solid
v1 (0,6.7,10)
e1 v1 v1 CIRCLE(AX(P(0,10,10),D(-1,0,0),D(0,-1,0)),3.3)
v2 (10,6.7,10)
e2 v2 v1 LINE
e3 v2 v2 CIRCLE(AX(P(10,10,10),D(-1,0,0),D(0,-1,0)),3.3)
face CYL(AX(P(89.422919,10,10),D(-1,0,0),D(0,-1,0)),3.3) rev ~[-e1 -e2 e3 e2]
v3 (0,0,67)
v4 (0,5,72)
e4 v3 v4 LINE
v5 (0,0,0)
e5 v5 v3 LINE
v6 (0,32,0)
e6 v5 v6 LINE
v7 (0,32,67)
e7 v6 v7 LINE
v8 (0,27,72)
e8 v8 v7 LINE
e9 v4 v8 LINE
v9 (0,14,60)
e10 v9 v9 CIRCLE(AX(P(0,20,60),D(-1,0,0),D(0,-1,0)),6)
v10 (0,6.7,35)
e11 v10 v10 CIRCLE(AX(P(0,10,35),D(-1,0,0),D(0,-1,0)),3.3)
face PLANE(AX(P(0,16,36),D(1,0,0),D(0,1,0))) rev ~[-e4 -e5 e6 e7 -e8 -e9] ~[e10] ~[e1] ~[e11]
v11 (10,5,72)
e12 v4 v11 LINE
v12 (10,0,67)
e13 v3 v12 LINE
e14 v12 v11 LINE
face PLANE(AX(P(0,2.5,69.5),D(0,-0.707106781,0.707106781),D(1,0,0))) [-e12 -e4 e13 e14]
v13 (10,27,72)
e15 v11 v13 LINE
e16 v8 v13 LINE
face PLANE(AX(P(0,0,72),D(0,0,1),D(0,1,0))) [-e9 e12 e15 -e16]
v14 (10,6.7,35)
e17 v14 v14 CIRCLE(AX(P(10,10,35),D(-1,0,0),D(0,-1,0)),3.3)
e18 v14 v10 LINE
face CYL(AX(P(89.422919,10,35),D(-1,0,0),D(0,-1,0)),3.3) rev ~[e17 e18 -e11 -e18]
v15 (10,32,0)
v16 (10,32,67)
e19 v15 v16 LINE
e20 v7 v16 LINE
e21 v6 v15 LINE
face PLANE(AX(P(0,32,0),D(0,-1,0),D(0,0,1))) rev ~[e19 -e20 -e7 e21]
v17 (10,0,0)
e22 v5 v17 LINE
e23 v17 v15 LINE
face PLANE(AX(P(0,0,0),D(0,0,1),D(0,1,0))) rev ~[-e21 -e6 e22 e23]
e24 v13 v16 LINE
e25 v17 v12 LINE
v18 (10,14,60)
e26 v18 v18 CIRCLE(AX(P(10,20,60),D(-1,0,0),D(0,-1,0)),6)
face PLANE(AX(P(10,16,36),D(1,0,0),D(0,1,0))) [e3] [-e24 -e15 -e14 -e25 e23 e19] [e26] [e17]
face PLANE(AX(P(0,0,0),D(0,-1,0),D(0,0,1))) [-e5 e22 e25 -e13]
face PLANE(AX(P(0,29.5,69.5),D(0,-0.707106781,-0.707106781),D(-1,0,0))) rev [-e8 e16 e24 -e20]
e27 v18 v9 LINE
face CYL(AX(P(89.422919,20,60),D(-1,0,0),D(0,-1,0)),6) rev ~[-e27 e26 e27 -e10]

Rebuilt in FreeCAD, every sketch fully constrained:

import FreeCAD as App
import Part
import Sketcher

V = App.Vector


def edges_at(feature, points):
    """Names of the edges that pass closest to the given points."""
    edges = feature.Shape.Edges
    near = lambda p: min(range(len(edges)), key=lambda i: edges[i].distToShape(Part.Vertex(*p))[0])
    return sorted({f"Edge{near(p) + 1}" for p in points})


def add_polygon(sketch, points):
    """Adds a closed chain of lines whose ends are joined by coincident constraints."""
    first, n = sketch.GeometryCount, len(points)
    for a, b in zip(points, points[1:] + points[:1]):
        sketch.addGeometry(Part.LineSegment(App.Vector(*a, 0), App.Vector(*b, 0)), False)
    for i in range(n):
        sketch.addConstraint(Sketcher.Constraint("Coincident", first + i, 2, first + (i + 1) % n, 1))

doc = App.newDocument("Part")
params = doc.addObject("Spreadsheet::Sheet", "Params")
for row, (alias, value) in enumerate([
    ("sketch1_width", "32 mm"),
    ("sketch1_height", "72 mm"),
    ("pad1_length", "10 mm"),
    ("sketch2_diameter", "6.6 mm"),
    ("hole_diameter", "6.6 mm"),
    ("sketch3_diameter", "12 mm"),
    ("hole2_diameter", "12 mm"),
    ("chamfer_size", "5 mm"),
], start=1):
    params.set(f"A{row}", alias)
    params.set(f"B{row}", "=" + value)
    params.setAlias(f"B{row}", alias)

body = doc.addObject("PartDesign::Body", "Body")

sketch1 = doc.addObject("Sketcher::SketchObject", "Sketch")
body.addObject(sketch1)
sketch1.AttachmentSupport = (doc.YZ_Plane, [""])
sketch1.MapMode = "FlatFace"
add_polygon(sketch1, [(0, 72), (0, 0), (32, 0), (32, 72)])
sketch1.addConstraint([
    Sketcher.Constraint("Vertical", 0),
    Sketcher.Constraint("Horizontal", 1),
    Sketcher.Constraint("Vertical", 2),
    Sketcher.Constraint("Horizontal", 3),
    Sketcher.Constraint("Coincident", 0, 2, -1, 1),
    Sketcher.Constraint("DistanceX", 1, 1, 1, 2, 32.0),
    Sketcher.Constraint("DistanceY", 0, 2, 0, 1, 72.0),
])
sketch1.setExpression("Constraints[9]", "Params.sketch1_width")
sketch1.setExpression("Constraints[10]", "Params.sketch1_height")
pad1 = doc.addObject("PartDesign::Pad", "Pad")
body.addObject(pad1)
pad1.Profile = sketch1
pad1.setExpression("Length", "Params.pad1_length")

sketch2 = doc.addObject("Sketcher::SketchObject", "Sketch001")
body.addObject(sketch2)
sketch2.AttachmentSupport = (doc.YZ_Plane, [""])
sketch2.MapMode = "FlatFace"
sketch2.AttachmentOffset = App.Placement(V(0, 0, 10), App.Rotation())
sketch2.addGeometry([
    Part.Circle(V(10, 35, 0), V(0, 0, 1), 3.3),
    Part.Circle(V(10, 10, 0), V(0, 0, 1), 3.3),
], False)
sketch2.addConstraint([
    Sketcher.Constraint("Equal", 0, 1),
    Sketcher.Constraint("Vertical", 0, 3, 1, 3),
    Sketcher.Constraint("Diameter", 0, 6.6),
    Sketcher.Constraint("DistanceX", -1, 1, 0, 3, 10.0),
    Sketcher.Constraint("DistanceY", -1, 1, 0, 3, 35.0),
    Sketcher.Constraint("DistanceY", -1, 1, 1, 3, 10.0),
])
sketch2.setExpression("Constraints[2]", "Params.sketch2_diameter")
doc.recompute()
hole = doc.addObject("PartDesign::Hole", "Hole")
body.addObject(hole)
hole.Profile = sketch2
hole.ThreadType = "None"
hole.setExpression("Diameter", "Params.hole_diameter")
hole.DepthType = "ThroughAll"

sketch3 = doc.addObject("Sketcher::SketchObject", "Sketch002")
body.addObject(sketch3)
sketch3.AttachmentSupport = (doc.YZ_Plane, [""])
sketch3.MapMode = "FlatFace"
sketch3.AttachmentOffset = App.Placement(V(0, 0, 10), App.Rotation())
sketch3.addGeometry(Part.Circle(V(20, 60, 0), V(0, 0, 1), 6), False)
sketch3.addConstraint([
    Sketcher.Constraint("Diameter", 0, 12.0),
    Sketcher.Constraint("DistanceX", -1, 1, 0, 3, 20.0),
    Sketcher.Constraint("DistanceY", -1, 1, 0, 3, 60.0),
])
sketch3.setExpression("Constraints[0]", "Params.sketch3_diameter")
doc.recompute()
hole2 = doc.addObject("PartDesign::Hole", "Hole001")
body.addObject(hole2)
hole2.Profile = sketch3
hole2.ThreadType = "None"
hole2.setExpression("Diameter", "Params.hole2_diameter")
hole2.DepthType = "ThroughAll"
doc.recompute()

chamfer = doc.addObject("PartDesign::Chamfer", "Chamfer")
body.addObject(chamfer)
chamfer.Base = (hole2, edges_at(hole2, [(5, 0, 72), (5, 32, 72)]))
chamfer.setExpression("Size", "Params.chamfer_size")

doc.recompute()
